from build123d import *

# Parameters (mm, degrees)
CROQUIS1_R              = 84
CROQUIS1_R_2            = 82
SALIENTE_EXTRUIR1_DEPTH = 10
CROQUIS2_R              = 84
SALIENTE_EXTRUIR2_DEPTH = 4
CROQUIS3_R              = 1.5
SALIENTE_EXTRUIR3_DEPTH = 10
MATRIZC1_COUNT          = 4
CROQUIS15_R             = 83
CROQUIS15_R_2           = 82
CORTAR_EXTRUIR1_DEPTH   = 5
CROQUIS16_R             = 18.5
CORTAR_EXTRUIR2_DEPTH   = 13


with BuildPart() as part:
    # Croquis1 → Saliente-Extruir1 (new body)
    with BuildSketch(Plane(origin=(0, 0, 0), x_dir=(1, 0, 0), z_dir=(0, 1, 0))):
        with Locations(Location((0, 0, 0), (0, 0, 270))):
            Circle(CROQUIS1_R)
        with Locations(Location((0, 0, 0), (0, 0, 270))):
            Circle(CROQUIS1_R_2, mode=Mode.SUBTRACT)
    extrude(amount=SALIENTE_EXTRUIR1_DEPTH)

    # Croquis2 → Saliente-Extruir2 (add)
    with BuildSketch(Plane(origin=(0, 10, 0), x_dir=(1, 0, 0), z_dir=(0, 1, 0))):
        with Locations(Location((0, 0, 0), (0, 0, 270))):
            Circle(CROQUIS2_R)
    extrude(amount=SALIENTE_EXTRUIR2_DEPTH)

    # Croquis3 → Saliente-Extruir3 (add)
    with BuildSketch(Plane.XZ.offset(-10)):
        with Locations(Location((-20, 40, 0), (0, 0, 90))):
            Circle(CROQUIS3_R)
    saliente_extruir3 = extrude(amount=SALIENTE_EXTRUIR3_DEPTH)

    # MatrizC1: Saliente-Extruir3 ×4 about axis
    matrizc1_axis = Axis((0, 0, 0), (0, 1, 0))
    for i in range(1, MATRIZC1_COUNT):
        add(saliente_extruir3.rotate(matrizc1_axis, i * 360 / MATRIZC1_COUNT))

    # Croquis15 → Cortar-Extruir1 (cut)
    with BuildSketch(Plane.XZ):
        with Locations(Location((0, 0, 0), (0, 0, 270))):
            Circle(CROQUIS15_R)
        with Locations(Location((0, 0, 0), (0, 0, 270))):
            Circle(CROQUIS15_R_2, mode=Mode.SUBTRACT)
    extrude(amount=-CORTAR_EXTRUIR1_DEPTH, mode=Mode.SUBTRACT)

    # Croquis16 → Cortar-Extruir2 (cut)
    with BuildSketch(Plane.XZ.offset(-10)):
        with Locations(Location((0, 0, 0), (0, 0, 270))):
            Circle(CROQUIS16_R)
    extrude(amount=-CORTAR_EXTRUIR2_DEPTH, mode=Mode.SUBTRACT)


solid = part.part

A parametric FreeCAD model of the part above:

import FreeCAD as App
import Part
import Sketcher

V = App.Vector
Q = App.Units.Quantity

doc = App.newDocument("Part")
body = doc.addObject("PartDesign::Body", "Body")

# Sketch on XZ plane
sketch1 = doc.addObject("Sketcher::SketchObject", "Sketch")
body.addObject(sketch1)
sketch1.AttachmentSupport = (doc.XZ_Plane, [""])
sketch1.MapMode = "FlatFace"
sketch1.addGeometry([
    Part.Circle(V(0, 0, 0), V(0, 0, 1), 84),
    Part.Circle(V(0, 0, 0), V(0, 0, 1), 82),
], False)
sketch1.addConstraint([
    Sketcher.Constraint("Coincident", 0, 3, -1, 1),
    Sketcher.Constraint("Coincident", 1, 3, -1, 1),
    Sketcher.Constraint("Diameter", 0, Q("168 mm")),
    Sketcher.Constraint("Diameter", 1, Q("164 mm")),
])
pad1 = doc.addObject("PartDesign::Pad", "Pad")
body.addObject(pad1)
pad1.Profile = sketch1
pad1.Length = 10
pad1.Reversed = True

# Sketch on XZ plane
sketch2 = doc.addObject("Sketcher::SketchObject", "Sketch001")
body.addObject(sketch2)
sketch2.AttachmentSupport = (doc.XZ_Plane, [""])
sketch2.MapMode = "FlatFace"
sketch2.AttachmentOffset = App.Placement(V(0, 0, -10), App.Rotation())
sketch2.addGeometry(Part.Circle(V(0, 0, 0), V(0, 0, 1), 84), False)
sketch2.addConstraint([
    Sketcher.Constraint("Coincident", 0, 3, -1, 1),
    Sketcher.Constraint("Diameter", 0, Q("168 mm")),
])
pad2 = doc.addObject("PartDesign::Pad", "Pad001")
body.addObject(pad2)
pad2.Profile = sketch2
pad2.Length = 4
pad2.Reversed = True

# Sketch on XZ plane
sketch3 = doc.addObject("Sketcher::SketchObject", "Sketch002")
body.addObject(sketch3)
sketch3.AttachmentSupport = (doc.XZ_Plane, [""])
sketch3.MapMode = "FlatFace"
sketch3.AttachmentOffset = App.Placement(V(0, 0, -10), App.Rotation())
sketch3.addGeometry(Part.Circle(V(-20, 40, 0), V(0, 0, 1), 1.5), False)
sketch3.addConstraint([
    Sketcher.Constraint("Diameter", 0, Q("3 mm")),
    Sketcher.Constraint("DistanceX", 0, 3, -1, 1, Q("20 mm")),
    Sketcher.Constraint("DistanceY", -1, 1, 0, 3, Q("40 mm")),
])
pad3 = doc.addObject("PartDesign::Pad", "Pad002")
body.addObject(pad3)
pad3.Profile = sketch3
pad3.Length = 10
doc.recompute()

polarpattern = doc.addObject("PartDesign::PolarPattern", "PolarPattern")
body.addObject(polarpattern)
polarpattern.Originals = [pad3]
polarpattern.Axis = (doc.Y_Axis, [""])
polarpattern.Angle = 360
polarpattern.Occurrences = 4
body.Tip = polarpattern

# Sketch on XZ plane
sketch4 = doc.addObject("Sketcher::SketchObject", "Sketch003")
body.addObject(sketch4)
sketch4.AttachmentSupport = (doc.XZ_Plane, [""])
sketch4.MapMode = "FlatFace"
sketch4.addGeometry([
    Part.Circle(V(0, 0, 0), V(0, 0, 1), 83),
    Part.Circle(V(0, 0, 0), V(0, 0, 1), 82),
], False)
sketch4.addConstraint([
    Sketcher.Constraint("Coincident", 0, 3, -1, 1),
    Sketcher.Constraint("Coincident", 1, 3, -1, 1),
    Sketcher.Constraint("Diameter", 0, Q("166 mm")),
    Sketcher.Constraint("Diameter", 1, Q("164 mm")),
])
pocket1 = doc.addObject("PartDesign::Pocket", "Pocket")
body.addObject(pocket1)
pocket1.Profile = sketch4
pocket1.Length = 5

# Sketch on XZ plane
sketch5 = doc.addObject("Sketcher::SketchObject", "Sketch004")
body.addObject(sketch5)
sketch5.AttachmentSupport = (doc.XZ_Plane, [""])
sketch5.MapMode = "FlatFace"
sketch5.AttachmentOffset = App.Placement(V(0, 0, -10), App.Rotation())
sketch5.addGeometry(Part.Circle(V(0, 0, 0), V(0, 0, 1), 18), False)
sketch5.addConstraint([
    Sketcher.Constraint("Coincident", 0, 3, -1, 1),
    Sketcher.Constraint("Diameter", 0, Q("37 mm")),
])
pocket2 = doc.addObject("PartDesign::Pocket", "Pocket001")
body.addObject(pocket2)
pocket2.Profile = sketch5
pocket2.Length = 13

doc.recompute()
